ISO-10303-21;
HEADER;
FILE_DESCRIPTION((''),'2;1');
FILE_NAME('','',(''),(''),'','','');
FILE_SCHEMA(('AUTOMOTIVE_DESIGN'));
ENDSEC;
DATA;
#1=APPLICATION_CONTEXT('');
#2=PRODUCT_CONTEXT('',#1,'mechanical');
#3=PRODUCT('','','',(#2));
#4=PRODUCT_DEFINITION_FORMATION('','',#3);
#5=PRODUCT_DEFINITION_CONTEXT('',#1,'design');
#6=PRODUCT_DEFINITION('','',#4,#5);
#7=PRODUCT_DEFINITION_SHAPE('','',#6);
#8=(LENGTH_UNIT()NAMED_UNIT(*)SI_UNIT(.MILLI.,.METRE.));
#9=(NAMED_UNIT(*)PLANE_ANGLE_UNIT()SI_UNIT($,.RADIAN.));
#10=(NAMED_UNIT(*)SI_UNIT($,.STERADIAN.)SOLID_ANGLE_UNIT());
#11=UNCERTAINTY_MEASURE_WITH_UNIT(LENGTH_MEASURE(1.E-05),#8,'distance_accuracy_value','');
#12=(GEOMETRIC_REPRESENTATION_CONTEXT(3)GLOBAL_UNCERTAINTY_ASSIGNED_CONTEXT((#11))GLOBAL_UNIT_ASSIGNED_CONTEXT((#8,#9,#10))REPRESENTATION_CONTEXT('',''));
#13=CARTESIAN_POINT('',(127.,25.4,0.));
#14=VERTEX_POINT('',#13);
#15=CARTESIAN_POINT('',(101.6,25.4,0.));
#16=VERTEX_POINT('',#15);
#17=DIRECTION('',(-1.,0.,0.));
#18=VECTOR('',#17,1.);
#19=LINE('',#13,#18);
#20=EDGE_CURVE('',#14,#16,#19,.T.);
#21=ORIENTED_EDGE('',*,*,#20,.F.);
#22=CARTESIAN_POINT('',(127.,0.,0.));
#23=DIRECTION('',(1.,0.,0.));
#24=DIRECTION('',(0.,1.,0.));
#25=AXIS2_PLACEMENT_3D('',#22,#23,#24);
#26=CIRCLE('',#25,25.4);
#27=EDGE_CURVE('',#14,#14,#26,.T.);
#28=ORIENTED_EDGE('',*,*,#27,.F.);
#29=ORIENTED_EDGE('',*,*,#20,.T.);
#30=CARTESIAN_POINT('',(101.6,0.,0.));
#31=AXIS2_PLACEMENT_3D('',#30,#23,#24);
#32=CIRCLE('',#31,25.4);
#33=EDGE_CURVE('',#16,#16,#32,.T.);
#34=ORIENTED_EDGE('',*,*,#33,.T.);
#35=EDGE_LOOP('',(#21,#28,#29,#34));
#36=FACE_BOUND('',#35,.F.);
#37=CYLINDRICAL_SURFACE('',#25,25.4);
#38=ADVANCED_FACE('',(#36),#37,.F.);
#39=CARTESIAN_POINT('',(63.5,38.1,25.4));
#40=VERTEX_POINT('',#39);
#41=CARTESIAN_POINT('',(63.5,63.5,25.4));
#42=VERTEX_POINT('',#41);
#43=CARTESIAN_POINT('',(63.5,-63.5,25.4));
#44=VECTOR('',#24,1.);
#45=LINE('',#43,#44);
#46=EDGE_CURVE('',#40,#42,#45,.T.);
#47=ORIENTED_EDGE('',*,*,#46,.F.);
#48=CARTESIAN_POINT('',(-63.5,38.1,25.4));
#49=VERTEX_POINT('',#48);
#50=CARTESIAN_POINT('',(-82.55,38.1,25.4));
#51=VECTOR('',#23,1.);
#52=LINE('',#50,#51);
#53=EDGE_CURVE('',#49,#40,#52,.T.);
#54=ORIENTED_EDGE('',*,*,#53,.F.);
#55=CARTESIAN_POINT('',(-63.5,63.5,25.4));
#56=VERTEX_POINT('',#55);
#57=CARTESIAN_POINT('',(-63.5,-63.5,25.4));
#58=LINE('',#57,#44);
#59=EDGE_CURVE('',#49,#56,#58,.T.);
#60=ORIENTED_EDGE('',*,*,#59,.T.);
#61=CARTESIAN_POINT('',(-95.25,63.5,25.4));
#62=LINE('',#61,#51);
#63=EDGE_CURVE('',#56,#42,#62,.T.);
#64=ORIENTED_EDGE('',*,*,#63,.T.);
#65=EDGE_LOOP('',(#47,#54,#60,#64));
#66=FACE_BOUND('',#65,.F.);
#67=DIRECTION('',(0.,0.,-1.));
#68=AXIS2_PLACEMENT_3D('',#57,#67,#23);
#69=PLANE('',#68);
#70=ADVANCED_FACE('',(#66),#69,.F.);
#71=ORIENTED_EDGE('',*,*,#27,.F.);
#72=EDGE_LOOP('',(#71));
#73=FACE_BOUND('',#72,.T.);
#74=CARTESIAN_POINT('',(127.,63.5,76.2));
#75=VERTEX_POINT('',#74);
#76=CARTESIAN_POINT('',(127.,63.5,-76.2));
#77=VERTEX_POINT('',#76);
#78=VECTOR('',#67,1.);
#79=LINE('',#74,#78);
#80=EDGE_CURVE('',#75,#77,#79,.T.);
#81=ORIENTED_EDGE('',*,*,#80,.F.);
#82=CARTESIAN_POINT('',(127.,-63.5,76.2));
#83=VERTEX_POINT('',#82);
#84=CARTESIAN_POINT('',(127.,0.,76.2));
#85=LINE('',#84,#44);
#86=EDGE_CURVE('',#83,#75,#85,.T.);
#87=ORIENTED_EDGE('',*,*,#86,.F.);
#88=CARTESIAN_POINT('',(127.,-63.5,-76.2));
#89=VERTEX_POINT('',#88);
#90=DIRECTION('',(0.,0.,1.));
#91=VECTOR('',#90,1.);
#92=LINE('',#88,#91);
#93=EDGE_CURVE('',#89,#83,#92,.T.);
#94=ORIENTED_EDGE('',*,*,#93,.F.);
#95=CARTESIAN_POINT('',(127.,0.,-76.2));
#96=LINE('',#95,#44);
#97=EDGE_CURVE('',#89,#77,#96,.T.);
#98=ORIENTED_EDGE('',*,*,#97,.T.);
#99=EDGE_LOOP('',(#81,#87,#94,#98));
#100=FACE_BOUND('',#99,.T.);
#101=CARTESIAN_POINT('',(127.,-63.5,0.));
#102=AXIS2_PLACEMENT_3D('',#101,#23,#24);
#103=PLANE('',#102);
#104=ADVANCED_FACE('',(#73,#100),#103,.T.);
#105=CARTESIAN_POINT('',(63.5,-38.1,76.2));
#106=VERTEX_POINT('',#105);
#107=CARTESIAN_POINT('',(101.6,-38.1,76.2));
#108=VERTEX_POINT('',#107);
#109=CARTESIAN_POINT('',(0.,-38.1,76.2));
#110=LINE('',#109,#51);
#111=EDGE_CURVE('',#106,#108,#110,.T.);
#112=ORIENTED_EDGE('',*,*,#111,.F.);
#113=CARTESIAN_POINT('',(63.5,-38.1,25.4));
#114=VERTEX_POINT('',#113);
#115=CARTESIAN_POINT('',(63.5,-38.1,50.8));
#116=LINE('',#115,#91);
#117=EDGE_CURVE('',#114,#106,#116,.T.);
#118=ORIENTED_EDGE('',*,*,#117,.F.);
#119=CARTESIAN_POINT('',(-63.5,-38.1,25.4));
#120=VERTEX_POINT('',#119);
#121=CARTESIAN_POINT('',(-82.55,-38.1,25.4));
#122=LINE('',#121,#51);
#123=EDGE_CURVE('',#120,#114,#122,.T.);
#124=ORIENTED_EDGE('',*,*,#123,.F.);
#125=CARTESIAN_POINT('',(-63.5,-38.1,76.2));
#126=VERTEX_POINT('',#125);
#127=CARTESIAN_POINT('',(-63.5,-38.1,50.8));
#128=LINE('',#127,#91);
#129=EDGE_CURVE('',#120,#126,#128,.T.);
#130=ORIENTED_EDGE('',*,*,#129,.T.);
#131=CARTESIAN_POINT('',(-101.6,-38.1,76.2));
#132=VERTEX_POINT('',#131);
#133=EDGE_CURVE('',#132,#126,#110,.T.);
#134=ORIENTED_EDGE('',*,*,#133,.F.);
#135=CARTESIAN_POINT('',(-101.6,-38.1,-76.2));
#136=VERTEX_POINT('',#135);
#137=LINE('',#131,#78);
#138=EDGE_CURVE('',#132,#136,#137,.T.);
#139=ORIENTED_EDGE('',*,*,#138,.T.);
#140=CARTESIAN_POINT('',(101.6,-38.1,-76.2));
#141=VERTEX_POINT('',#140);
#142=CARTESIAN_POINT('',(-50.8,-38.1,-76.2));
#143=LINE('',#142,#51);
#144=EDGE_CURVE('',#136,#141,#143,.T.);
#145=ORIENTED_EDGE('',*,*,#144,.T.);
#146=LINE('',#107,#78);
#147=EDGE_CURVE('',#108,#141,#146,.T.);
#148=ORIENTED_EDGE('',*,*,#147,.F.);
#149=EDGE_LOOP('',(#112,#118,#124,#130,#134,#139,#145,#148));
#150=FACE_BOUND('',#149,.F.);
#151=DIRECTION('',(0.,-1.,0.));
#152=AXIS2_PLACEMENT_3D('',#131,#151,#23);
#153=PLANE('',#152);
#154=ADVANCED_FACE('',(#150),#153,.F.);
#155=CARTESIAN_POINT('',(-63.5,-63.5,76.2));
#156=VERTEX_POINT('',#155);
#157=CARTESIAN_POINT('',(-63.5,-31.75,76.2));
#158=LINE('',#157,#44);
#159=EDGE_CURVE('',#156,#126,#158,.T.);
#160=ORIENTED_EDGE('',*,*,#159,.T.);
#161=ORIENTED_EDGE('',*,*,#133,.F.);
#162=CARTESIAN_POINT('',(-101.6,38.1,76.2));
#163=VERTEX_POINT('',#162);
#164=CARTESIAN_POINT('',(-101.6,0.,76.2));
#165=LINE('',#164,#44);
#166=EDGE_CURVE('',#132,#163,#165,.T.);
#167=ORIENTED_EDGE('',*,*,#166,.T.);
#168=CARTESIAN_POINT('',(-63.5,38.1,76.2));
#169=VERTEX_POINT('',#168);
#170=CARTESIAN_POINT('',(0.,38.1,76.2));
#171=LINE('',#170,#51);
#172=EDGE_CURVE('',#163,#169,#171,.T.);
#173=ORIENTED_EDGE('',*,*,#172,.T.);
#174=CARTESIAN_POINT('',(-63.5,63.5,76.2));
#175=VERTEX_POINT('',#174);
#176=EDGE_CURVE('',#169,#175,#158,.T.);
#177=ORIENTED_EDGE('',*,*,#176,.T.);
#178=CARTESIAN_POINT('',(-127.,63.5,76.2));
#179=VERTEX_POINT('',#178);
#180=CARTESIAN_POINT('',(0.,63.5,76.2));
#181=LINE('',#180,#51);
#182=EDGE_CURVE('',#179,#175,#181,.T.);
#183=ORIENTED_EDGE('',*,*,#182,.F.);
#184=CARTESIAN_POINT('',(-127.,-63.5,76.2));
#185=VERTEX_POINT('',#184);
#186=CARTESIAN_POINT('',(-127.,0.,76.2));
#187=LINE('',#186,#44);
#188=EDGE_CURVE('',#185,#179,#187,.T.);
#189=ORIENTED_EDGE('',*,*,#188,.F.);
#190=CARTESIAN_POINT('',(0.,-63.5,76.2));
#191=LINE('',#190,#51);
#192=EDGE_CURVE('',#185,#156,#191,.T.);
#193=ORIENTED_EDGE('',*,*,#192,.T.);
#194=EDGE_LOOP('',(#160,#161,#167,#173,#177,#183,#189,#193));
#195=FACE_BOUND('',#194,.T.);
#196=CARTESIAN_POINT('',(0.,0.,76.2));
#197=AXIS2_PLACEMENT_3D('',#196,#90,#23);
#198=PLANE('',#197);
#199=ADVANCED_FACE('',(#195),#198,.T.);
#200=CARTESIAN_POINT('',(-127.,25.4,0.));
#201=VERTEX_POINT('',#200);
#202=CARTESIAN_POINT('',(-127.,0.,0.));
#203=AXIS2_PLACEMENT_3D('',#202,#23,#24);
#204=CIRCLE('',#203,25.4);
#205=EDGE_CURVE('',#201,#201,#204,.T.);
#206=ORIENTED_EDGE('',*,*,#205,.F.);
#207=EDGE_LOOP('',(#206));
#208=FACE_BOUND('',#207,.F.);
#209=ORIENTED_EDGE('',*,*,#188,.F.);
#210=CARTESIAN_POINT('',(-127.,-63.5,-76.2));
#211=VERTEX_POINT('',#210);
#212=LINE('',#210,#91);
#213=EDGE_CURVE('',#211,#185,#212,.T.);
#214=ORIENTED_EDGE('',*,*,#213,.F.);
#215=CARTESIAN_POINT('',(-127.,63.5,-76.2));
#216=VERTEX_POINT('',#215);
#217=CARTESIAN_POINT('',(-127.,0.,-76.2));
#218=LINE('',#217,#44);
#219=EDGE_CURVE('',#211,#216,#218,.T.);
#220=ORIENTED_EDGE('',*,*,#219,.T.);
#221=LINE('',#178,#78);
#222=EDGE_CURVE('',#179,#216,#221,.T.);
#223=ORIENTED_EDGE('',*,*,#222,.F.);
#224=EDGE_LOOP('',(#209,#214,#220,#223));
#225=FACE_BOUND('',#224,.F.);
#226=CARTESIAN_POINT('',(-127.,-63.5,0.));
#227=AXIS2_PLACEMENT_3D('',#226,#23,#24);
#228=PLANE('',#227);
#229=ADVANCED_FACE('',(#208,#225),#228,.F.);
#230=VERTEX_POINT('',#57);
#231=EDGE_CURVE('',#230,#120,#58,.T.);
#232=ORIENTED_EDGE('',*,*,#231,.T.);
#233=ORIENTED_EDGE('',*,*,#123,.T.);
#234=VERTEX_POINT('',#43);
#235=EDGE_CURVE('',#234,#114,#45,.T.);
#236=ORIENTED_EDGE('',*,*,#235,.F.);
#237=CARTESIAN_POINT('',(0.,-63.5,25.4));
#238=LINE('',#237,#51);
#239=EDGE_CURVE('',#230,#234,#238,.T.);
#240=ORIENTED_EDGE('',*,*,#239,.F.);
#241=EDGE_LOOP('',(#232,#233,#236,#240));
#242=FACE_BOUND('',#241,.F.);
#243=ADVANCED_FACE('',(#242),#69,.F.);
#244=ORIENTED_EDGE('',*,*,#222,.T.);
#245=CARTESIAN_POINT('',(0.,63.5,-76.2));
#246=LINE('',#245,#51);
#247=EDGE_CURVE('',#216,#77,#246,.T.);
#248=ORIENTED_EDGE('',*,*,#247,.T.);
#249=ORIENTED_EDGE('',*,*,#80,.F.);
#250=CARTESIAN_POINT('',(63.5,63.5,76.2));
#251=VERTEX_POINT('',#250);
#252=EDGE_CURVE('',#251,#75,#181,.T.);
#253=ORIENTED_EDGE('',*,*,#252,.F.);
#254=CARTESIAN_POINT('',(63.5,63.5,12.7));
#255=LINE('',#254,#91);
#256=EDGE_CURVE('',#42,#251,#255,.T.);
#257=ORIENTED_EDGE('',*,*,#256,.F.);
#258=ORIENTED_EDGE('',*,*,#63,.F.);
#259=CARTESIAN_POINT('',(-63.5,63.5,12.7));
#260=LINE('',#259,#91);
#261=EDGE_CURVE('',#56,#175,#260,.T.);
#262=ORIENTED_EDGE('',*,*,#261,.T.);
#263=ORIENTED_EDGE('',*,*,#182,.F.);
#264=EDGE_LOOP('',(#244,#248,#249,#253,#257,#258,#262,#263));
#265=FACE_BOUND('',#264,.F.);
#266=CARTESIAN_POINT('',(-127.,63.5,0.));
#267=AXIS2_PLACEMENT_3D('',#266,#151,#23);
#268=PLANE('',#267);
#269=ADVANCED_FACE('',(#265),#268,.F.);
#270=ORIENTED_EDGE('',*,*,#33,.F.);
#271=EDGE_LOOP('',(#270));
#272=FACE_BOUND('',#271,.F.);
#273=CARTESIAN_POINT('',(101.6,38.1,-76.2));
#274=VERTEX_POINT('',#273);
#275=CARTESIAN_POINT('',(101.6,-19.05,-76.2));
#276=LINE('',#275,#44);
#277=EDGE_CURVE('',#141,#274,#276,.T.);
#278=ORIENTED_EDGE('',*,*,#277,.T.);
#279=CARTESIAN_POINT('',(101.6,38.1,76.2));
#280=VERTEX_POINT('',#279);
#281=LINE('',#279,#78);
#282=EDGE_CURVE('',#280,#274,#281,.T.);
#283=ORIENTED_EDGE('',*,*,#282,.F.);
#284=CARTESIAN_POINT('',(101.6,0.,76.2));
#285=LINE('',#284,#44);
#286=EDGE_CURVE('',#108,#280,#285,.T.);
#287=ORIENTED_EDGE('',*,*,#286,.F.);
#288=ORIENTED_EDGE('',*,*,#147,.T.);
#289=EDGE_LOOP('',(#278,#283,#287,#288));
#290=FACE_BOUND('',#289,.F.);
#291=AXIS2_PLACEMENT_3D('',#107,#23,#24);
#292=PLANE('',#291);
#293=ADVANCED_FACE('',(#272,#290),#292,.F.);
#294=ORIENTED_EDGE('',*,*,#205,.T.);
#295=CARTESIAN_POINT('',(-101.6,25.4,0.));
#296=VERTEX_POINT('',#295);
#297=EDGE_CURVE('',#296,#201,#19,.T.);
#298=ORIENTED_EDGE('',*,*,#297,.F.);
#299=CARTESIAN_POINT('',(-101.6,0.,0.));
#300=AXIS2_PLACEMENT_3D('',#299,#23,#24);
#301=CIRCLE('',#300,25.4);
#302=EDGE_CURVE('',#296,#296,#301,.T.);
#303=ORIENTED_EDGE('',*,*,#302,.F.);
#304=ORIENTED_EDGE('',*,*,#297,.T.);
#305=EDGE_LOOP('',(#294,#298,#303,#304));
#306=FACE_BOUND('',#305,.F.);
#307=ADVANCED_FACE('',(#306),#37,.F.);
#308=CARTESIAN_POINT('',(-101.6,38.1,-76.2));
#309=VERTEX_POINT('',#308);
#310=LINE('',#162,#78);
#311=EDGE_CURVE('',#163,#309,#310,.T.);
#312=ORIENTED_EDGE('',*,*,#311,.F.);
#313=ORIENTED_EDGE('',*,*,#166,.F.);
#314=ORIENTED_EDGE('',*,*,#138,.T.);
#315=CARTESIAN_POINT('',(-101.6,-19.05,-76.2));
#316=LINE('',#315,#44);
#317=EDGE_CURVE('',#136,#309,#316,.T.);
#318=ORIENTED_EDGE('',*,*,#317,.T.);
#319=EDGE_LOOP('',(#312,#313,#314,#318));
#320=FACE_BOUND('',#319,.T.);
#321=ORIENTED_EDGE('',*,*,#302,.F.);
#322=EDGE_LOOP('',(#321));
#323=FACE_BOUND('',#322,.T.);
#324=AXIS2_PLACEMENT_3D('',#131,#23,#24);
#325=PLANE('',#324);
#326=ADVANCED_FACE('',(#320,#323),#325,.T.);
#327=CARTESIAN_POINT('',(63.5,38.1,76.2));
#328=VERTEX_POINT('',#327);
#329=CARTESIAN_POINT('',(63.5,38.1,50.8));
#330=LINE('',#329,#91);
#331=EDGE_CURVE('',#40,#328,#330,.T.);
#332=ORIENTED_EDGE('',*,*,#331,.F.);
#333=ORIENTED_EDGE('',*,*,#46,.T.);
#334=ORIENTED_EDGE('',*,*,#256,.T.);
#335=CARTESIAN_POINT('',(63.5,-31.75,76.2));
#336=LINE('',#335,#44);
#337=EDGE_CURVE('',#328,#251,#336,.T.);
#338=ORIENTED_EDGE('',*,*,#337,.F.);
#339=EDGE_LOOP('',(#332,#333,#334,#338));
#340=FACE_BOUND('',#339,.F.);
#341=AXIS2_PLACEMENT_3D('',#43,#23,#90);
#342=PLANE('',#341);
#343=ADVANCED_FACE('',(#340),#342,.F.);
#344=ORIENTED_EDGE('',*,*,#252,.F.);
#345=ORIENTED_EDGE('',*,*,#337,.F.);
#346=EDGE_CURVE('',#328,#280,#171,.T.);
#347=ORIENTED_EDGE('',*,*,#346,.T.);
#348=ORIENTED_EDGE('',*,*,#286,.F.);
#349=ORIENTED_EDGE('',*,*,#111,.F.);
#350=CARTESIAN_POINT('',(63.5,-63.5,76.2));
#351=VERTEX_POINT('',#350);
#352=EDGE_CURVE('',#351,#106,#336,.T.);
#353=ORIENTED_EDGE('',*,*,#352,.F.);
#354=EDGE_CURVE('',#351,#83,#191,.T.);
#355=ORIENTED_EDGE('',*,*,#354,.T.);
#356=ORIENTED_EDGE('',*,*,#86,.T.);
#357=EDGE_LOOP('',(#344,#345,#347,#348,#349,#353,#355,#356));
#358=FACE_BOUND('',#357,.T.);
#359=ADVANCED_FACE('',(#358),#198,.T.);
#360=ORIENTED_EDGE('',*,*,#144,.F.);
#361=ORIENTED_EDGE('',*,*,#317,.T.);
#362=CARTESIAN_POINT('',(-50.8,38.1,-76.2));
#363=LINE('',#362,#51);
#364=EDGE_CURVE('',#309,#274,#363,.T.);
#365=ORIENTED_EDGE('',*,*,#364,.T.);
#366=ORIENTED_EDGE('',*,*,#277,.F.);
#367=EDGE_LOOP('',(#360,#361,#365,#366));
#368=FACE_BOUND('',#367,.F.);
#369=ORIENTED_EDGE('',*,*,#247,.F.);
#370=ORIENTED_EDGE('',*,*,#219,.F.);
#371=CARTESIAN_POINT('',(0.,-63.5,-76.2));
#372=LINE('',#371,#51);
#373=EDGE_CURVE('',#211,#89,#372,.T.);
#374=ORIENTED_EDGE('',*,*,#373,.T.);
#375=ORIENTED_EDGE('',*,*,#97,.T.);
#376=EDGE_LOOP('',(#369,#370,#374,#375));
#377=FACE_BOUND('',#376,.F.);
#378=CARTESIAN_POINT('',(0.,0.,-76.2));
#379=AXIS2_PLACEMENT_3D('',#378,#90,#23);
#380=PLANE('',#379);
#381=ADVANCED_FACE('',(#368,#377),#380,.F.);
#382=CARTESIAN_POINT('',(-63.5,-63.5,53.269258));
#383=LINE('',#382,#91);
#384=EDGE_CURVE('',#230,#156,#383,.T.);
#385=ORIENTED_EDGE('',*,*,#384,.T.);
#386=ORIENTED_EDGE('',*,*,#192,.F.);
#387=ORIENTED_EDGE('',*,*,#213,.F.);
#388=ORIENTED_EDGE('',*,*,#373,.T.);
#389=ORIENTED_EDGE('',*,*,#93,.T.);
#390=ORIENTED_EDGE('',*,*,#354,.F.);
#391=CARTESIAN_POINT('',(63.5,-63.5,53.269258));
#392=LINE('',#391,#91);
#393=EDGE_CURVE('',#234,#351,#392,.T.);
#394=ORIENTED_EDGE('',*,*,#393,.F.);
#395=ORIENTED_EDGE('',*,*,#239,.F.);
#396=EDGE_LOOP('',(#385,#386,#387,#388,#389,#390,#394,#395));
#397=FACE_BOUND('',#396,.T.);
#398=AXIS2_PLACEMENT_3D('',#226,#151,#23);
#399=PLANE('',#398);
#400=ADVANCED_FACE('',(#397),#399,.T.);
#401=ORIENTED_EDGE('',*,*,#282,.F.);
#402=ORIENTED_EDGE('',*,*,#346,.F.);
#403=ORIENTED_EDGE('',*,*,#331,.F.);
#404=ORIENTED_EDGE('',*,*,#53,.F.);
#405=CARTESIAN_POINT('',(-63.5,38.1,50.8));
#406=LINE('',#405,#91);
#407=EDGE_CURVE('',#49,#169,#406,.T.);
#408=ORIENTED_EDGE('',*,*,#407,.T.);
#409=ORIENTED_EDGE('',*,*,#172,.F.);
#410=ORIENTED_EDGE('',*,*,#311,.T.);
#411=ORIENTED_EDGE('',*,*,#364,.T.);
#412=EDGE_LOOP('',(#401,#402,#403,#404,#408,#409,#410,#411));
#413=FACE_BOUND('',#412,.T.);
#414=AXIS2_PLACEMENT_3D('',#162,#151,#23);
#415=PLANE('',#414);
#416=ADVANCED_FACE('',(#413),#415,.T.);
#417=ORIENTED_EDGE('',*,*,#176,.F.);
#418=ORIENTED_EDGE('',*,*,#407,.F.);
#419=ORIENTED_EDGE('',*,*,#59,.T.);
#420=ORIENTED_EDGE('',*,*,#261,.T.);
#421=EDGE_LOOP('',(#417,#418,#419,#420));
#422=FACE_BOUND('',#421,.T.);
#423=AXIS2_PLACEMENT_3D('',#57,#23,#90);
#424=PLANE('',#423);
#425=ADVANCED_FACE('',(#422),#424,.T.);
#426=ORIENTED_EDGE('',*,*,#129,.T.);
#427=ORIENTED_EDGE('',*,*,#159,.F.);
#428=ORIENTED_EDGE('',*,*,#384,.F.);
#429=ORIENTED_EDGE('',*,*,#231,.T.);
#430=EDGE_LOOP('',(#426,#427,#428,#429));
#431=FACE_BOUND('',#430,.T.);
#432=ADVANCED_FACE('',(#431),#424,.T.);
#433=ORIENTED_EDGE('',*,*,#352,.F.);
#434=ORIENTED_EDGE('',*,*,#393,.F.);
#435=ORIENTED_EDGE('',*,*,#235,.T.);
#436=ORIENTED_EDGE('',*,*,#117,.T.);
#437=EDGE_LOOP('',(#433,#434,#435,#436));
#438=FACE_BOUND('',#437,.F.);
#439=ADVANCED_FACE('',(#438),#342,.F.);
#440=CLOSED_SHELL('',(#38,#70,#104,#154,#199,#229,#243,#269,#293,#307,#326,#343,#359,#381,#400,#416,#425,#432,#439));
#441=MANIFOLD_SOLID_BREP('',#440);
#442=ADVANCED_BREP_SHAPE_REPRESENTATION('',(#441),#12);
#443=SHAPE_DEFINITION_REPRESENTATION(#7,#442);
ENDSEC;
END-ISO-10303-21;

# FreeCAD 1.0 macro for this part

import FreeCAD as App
import Part
import Sketcher
Q = App.Units.Quantity

doc = App.newDocument("Part")
params = doc.addObject("Spreadsheet::Sheet", "Params")
for row, (alias, value) in enumerate([
    ("sketch1_width", "10 in"),
    ("sketch1_height", "5 in"),
    ("pad1_length", "6 in"),
    ("sketch2_width", "8 in"),
    ("sketch2_height", "3 in"),
    ("sketch3_width", "5 in"),
    ("sketch4_diameter", "2 in"),
], start=1):
    params.set(f"A{row}", alias)
    params.set(f"B{row}", "=" + value)
    params.setAlias(f"B{row}", alias)

body = doc.addObject("PartDesign::Body", "Body")

# Sketch on XY plane
sketch1 = body.newObject("Sketcher::SketchObject", "Sketch")
sketch1.AttachmentSupport = (doc.getObject("XY_Plane"), [""])
sketch1.MapMode = "FlatFace"
sketch1.addGeometry([
    Part.LineSegment(App.Vector(-127, 63.5, 0), App.Vector(-127, -63.5, 0)),
    Part.LineSegment(App.Vector(-127, -63.5, 0), App.Vector(127, -63.5, 0)),
    Part.LineSegment(App.Vector(127, -63.5, 0), App.Vector(127, 63.5, 0)),
    Part.LineSegment(App.Vector(127, 63.5, 0), App.Vector(-127, 63.5, 0)),
], False)
sketch1.addConstraint([
    Sketcher.Constraint("Coincident", 0, 2, 1, 1),
    Sketcher.Constraint("Coincident", 1, 2, 2, 1),
    Sketcher.Constraint("Coincident", 2, 2, 3, 1),
    Sketcher.Constraint("Coincident", 3, 2, 0, 1),
    Sketcher.Constraint("Vertical", 0),
    Sketcher.Constraint("Horizontal", 1),
    Sketcher.Constraint("Vertical", 2),
    Sketcher.Constraint("Horizontal", 3),
    Sketcher.Constraint("Symmetric", 0, 2, 2, 2, -1, 1),
    Sketcher.Constraint("DistanceX", 1, 1, 1, 2, Q("10 in")),
    Sketcher.Constraint("DistanceY", 0, 2, 0, 1, Q("5 in")),
])
sketch1.setExpression("Constraints[9]", "Params.sketch1_width")
sketch1.setExpression("Constraints[10]", "Params.sketch1_height")
pad1 = body.newObject("PartDesign::Pad", "Pad")
pad1.Profile = sketch1
pad1.setExpression("Length", "Params.pad1_length")
pad1.Midplane = True

# Sketch on XY plane
sketch2 = body.newObject("Sketcher::SketchObject", "Sketch001")
sketch2.AttachmentSupport = (doc.getObject("XY_Plane"), [""])
sketch2.MapMode = "FlatFace"
sketch2.AttachmentOffset = App.Placement(App.Vector(0, 0, 3 * 25.4), App.Rotation())
sketch2.addGeometry([
    Part.LineSegment(App.Vector(-101.6, 38.1, 0), App.Vector(-101.6, -38.1, 0)),
    Part.LineSegment(App.Vector(-101.6, -38.1, 0), App.Vector(101.6, -38.1, 0)),
    Part.LineSegment(App.Vector(101.6, -38.1, 0), App.Vector(101.6, 38.1, 0)),
    Part.LineSegment(App.Vector(101.6, 38.1, 0), App.Vector(-101.6, 38.1, 0)),
], False)
sketch2.addConstraint([
    Sketcher.Constraint("Coincident", 0, 2, 1, 1),
    Sketcher.Constraint("Coincident", 1, 2, 2, 1),
    Sketcher.Constraint("Coincident", 2, 2, 3, 1),
    Sketcher.Constraint("Coincident", 3, 2, 0, 1),
    Sketcher.Constraint("Vertical", 0),
    Sketcher.Constraint("Horizontal", 1),
    Sketcher.Constraint("Vertical", 2),
    Sketcher.Constraint("Horizontal", 3),
    Sketcher.Constraint("Symmetric", 0, 2, 2, 2, -1, 1),
    Sketcher.Constraint("DistanceX", 1, 1, 1, 2, Q("8 in")),
    Sketcher.Constraint("DistanceY", 0, 2, 0, 1, Q("3 in")),
])
sketch2.setExpression("Constraints[9]", "Params.sketch2_width")
sketch2.setExpression("Constraints[10]", "Params.sketch2_height")
pocket1 = body.newObject("PartDesign::Pocket", "Pocket")
pocket1.Profile = sketch2
pocket1.Type = "ThroughAll"

# Sketch on XZ plane
sketch3 = body.newObject("Sketcher::SketchObject", "Sketch002")
sketch3.AttachmentSupport = (doc.getObject("XZ_Plane"), [""])
sketch3.MapMode = "FlatFace"
sketch3.AttachmentOffset = App.Placement(App.Vector(0, 0, 2.5 * 25.4), App.Rotation())
sketch3.addGeometry([
    Part.LineSegment(App.Vector(-63.5, 81.138516, 0), App.Vector(-63.5, 25.4, 0)),
    Part.LineSegment(App.Vector(-63.5, 25.4, 0), App.Vector(63.5, 25.4, 0)),
    Part.LineSegment(App.Vector(63.5, 25.4, 0), App.Vector(63.5, 81.138516, 0)),
    Part.LineSegment(App.Vector(63.5, 81.138516, 0), App.Vector(-63.5, 81.138516, 0)),
], False)
sketch3.addConstraint([
    Sketcher.Constraint("Coincident", 0, 2, 1, 1),
    Sketcher.Constraint("Coincident", 1, 2, 2, 1),
    Sketcher.Constraint("Coincident", 2, 2, 3, 1),
    Sketcher.Constraint("Coincident", 3, 2, 0, 1),
    Sketcher.Constraint("Vertical", 0),
    Sketcher.Constraint("Horizontal", 1),
    Sketcher.Constraint("Vertical", 2),
    Sketcher.Constraint("Horizontal", 3),
    Sketcher.Constraint("DistanceX", 1, 1, 1, 2, Q("5 in")),
    Sketcher.Constraint("DistanceY", -1, 1, 0, 2, Q("1 in")),
    Sketcher.Constraint("DistanceX", 0, 2, -1, 1, Q("2.5 in")),
    Sketcher.Constraint("DistanceY", 0, 2, 0, 1, 55.738516),
])
sketch3.setExpression("Constraints[8]", "Params.sketch3_width")
pocket2 = body.newObject("PartDesign::Pocket", "Pocket001")
pocket2.Profile = sketch3
pocket2.Type = "ThroughAll"

# Sketch on YZ plane
sketch4 = body.newObject("Sketcher::SketchObject", "Sketch003")
sketch4.AttachmentSupport = (doc.getObject("YZ_Plane"), [""])
sketch4.MapMode = "FlatFace"
sketch4.AttachmentOffset = App.Placement(App.Vector(0, 0, 5 * 25.4), App.Rotation())
sketch4.addGeometry(Part.Circle(App.Vector(0, 0, 0), App.Vector(0, 0, 1), 25.4), False)
sketch4.addConstraint([
    Sketcher.Constraint("Coincident", 0, 3, -1, 1),
    Sketcher.Constraint("Diameter", 0, Q("2 in")),
])
sketch4.setExpression("Constraints[1]", "Params.sketch4_diameter")
pocket3 = body.newObject("PartDesign::Pocket", "Pocket002")
pocket3.Profile = sketch4
pocket3.Type = "ThroughAll"

doc.recompute()
